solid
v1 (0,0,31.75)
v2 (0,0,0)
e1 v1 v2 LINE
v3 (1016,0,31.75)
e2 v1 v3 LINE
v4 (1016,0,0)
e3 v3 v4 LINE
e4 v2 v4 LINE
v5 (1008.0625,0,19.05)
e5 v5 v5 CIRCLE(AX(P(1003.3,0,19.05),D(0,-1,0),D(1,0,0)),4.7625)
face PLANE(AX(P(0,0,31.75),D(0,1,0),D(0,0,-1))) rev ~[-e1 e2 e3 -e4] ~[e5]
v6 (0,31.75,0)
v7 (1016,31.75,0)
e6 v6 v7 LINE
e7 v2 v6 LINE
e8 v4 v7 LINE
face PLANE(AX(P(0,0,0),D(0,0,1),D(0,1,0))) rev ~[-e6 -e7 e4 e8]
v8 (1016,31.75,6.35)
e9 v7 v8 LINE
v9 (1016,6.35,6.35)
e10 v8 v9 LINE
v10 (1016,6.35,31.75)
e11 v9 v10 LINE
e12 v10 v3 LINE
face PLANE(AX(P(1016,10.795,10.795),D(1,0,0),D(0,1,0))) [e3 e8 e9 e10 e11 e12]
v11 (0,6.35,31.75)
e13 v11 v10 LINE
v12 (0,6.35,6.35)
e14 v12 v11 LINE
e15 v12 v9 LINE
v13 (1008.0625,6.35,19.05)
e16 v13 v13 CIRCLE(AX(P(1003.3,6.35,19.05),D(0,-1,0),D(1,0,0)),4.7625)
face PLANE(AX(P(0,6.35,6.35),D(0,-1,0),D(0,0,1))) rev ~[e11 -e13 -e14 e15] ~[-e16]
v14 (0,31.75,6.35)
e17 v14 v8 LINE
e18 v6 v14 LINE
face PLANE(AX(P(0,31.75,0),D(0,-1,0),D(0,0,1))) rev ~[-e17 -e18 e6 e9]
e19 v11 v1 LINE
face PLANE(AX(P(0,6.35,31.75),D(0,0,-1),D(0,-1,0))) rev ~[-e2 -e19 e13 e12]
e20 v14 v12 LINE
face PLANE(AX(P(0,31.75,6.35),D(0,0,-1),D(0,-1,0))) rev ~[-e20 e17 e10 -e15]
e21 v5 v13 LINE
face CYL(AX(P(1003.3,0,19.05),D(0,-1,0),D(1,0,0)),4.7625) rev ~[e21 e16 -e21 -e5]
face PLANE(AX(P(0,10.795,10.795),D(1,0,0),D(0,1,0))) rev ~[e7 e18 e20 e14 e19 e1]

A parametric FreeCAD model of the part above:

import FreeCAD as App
import Part
import Sketcher
Q = App.Units.Quantity

doc = App.newDocument("Part")
params = doc.addObject("Spreadsheet::Sheet", "Params")
for row, (alias, value) in enumerate([
    ("sketch1_width", "1 in"),
    ("sketch1_width2", "1.25 in"),
    ("pad1_length", "40 in"),
    ("sketch2_diameter", "0.375 in"),
], start=1):
    params.set(f"A{row}", alias)
    params.set(f"B{row}", "=" + value)
    params.setAlias(f"B{row}", alias)

body = doc.addObject("PartDesign::Body", "Body")

# Sketch on YZ plane
sketch1 = body.newObject("Sketcher::SketchObject", "Sketch")
sketch1.AttachmentSupport = (doc.getObject("YZ_Plane"), [""])
sketch1.MapMode = "FlatFace"
sketch1.addGeometry(Part.LineSegment(App.Vector(0, 32, 0), App.Vector(0, 0, 0)), False)
sketch1.addGeometry(Part.LineSegment(App.Vector(0, 0, 0), App.Vector(32, 0, 0)), False)
sketch1.addGeometry(Part.LineSegment(App.Vector(32, 0, 0), App.Vector(32, 6, 0)), False)
sketch1.addGeometry(Part.LineSegment(App.Vector(32, 6, 0), App.Vector(6, 6, 0)), False)
sketch1.addGeometry(Part.LineSegment(App.Vector(6, 6, 0), App.Vector(6, 32, 0)), False)
sketch1.addGeometry(Part.LineSegment(App.Vector(6, 32, 0), App.Vector(0, 32, 0)), False)
sketch1.addConstraint(Sketcher.Constraint("Coincident", 0, 2, 1, 1))
sketch1.addConstraint(Sketcher.Constraint("Coincident", 1, 2, 2, 1))
sketch1.addConstraint(Sketcher.Constraint("Coincident", 2, 2, 3, 1))
sketch1.addConstraint(Sketcher.Constraint("Coincident", 3, 2, 4, 1))
sketch1.addConstraint(Sketcher.Constraint("Coincident", 4, 2, 5, 1))
sketch1.addConstraint(Sketcher.Constraint("Coincident", 5, 2, 0, 1))
sketch1.addConstraint(Sketcher.Constraint("Vertical", 0))
sketch1.addConstraint(Sketcher.Constraint("Horizontal", 1))
sketch1.addConstraint(Sketcher.Constraint("Vertical", 2))
sketch1.addConstraint(Sketcher.Constraint("Horizontal", 3))
sketch1.addConstraint(Sketcher.Constraint("Vertical", 4))
sketch1.addConstraint(Sketcher.Constraint("Horizontal", 5))
sketch1.addConstraint(Sketcher.Constraint("Coincident", 0, 2, -1, 1))
sketch1.addConstraint(Sketcher.Constraint("Equal", 1, 0))
sketch1.addConstraint(Sketcher.Constraint("Equal", 5, 2))
sketch1.addConstraint(Sketcher.Constraint("DistanceX", 3, 2, 3, 1, Q("1 in")))
sketch1.addConstraint(Sketcher.Constraint("DistanceX", 1, 1, 1, 2, Q("1.25 in")))
sketch1.setExpression("Constraints[15]", "Params.sketch1_width")
sketch1.setExpression("Constraints[16]", "Params.sketch1_width2")
pad1 = body.newObject("PartDesign::Pad", "Pad")
pad1.Profile = sketch1
pad1.setExpression("Length", "Params.pad1_length")

# Sketch on XZ plane
sketch2 = body.newObject("Sketcher::SketchObject", "Sketch001")
sketch2.AttachmentSupport = (doc.getObject("XZ_Plane"), [""])
sketch2.MapMode = "FlatFace"
sketch2.addGeometry(Part.Circle(App.Vector(1003.3, 19.1, 0), App.Vector(0, 0, 1), 4.8), False)
sketch2.addConstraint(Sketcher.Constraint("Diameter", 0, Q("0.375 in")))
sketch2.addConstraint(Sketcher.Constraint("DistanceX", -1, 1, 0, 3, Q("39.5 in")))
sketch2.addConstraint(Sketcher.Constraint("DistanceY", -1, 1, 0, 3, Q("0.75 in")))
sketch2.setExpression("Constraints[0]", "Params.sketch2_diameter")
pocket1 = body.newObject("PartDesign::Pocket", "Pocket")
pocket1.Profile = sketch2
pocket1.Type = "ThroughAll"

doc.recompute()
